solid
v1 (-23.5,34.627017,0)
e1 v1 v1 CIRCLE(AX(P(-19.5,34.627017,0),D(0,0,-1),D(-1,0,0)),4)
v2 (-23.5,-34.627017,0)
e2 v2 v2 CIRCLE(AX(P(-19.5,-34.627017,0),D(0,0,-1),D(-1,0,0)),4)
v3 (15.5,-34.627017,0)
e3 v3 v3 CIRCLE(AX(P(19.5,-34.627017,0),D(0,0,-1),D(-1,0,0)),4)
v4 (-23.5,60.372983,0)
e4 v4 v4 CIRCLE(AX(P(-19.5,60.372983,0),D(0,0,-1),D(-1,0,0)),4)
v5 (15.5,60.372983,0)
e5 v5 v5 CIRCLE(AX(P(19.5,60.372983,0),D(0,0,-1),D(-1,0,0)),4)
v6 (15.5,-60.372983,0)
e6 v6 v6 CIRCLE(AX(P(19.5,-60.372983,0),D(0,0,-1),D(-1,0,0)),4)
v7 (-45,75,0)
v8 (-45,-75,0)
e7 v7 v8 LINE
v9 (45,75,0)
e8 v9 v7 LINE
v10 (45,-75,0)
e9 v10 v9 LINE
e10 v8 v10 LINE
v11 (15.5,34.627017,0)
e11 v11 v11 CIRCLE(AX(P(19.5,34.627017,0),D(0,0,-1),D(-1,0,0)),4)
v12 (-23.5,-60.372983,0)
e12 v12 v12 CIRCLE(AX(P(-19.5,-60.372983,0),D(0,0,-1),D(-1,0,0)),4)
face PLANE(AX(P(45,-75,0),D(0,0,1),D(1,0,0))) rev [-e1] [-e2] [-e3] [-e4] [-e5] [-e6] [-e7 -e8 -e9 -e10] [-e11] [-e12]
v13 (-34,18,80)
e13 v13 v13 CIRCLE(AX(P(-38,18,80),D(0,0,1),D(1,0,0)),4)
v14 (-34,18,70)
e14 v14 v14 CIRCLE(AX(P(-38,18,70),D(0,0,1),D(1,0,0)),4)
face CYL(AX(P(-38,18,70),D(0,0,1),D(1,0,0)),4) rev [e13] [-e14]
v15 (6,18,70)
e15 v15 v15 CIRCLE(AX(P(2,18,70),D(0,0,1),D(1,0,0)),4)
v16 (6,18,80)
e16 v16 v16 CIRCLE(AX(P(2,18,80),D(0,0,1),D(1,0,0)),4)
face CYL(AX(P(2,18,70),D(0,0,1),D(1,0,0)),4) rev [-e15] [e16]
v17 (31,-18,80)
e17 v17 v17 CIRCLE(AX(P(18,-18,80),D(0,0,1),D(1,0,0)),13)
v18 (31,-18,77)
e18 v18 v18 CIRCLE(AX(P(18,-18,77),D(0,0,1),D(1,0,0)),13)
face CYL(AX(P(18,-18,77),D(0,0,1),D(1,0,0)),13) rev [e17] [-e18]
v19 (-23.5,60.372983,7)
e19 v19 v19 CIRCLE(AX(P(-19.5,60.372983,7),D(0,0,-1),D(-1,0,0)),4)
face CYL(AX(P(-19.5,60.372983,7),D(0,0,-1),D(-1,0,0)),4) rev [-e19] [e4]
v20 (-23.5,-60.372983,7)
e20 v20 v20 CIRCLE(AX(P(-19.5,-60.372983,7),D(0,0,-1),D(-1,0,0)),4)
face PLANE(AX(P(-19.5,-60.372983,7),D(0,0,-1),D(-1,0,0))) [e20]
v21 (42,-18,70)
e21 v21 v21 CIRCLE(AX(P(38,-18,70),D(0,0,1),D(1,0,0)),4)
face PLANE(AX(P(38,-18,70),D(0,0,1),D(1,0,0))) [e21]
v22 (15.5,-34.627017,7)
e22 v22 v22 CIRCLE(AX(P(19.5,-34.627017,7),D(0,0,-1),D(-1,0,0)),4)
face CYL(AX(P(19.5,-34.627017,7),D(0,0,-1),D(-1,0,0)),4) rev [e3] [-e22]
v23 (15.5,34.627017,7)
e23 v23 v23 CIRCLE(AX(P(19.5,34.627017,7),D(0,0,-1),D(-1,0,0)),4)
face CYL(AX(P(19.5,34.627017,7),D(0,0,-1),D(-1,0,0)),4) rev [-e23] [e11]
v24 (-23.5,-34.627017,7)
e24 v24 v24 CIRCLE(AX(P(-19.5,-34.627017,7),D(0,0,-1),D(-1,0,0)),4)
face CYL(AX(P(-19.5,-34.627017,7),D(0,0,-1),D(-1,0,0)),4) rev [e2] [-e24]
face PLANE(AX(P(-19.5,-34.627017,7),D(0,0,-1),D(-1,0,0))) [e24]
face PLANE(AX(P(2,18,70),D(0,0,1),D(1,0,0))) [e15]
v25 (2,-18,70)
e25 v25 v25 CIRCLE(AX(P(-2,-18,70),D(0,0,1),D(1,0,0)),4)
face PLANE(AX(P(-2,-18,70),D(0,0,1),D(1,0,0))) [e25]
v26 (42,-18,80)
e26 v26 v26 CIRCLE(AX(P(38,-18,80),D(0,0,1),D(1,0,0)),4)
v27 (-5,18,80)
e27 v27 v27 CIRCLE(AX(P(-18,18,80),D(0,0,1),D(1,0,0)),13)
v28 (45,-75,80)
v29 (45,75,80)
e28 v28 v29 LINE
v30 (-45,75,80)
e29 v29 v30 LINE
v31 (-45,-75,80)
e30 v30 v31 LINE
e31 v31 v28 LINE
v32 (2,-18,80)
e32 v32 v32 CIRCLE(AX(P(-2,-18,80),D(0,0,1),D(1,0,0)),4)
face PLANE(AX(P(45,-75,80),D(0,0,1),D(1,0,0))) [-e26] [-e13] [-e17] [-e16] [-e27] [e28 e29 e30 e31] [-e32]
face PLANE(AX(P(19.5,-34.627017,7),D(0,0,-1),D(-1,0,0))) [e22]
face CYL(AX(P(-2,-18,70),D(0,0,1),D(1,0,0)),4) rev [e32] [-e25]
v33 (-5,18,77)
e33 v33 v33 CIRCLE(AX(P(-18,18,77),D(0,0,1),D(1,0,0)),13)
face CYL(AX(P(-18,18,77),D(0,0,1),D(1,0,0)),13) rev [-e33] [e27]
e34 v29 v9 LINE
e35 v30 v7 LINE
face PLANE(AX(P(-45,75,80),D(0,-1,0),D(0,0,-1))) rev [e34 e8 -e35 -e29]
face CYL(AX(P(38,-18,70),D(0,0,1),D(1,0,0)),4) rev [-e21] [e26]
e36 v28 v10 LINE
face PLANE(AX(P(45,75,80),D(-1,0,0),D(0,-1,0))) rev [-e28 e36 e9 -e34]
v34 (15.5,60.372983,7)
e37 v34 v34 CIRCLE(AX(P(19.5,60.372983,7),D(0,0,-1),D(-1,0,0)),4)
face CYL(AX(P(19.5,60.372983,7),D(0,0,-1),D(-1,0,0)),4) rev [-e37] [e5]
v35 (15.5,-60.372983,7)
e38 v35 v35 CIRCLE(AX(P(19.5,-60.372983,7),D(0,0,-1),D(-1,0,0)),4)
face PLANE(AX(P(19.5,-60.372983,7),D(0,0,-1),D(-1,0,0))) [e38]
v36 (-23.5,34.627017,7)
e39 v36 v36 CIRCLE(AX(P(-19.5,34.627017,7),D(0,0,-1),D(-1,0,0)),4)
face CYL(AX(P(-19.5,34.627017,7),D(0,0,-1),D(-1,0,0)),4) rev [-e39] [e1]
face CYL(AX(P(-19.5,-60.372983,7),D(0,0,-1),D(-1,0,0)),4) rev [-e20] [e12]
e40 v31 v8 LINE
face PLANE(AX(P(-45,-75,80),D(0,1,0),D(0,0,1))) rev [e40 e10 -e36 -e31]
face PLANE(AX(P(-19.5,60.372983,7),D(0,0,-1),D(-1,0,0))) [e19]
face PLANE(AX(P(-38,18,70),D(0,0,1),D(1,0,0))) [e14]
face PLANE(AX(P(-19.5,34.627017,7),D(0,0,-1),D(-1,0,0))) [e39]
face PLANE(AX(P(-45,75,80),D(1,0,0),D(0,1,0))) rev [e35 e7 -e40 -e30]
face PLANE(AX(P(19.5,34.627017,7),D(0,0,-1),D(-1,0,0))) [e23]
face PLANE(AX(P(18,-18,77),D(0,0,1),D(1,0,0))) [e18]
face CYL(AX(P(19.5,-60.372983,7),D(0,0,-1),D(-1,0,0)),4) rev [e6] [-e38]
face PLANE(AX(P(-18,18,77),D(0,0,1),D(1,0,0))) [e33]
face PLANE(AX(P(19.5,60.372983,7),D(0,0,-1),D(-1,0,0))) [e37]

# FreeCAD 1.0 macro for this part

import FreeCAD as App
import Part
import Sketcher

V = App.Vector
Q = App.Units.Quantity


def add_polygon(sketch, points):
    """Adds a closed chain of lines whose ends are joined by coincident constraints."""
    first, n = sketch.GeometryCount, len(points)
    for a, b in zip(points, points[1:] + points[:1]):
        sketch.addGeometry(Part.LineSegment(App.Vector(*a, 0), App.Vector(*b, 0)), False)
    for i in range(n):
        sketch.addConstraint(Sketcher.Constraint("Coincident", first + i, 2, first + (i + 1) % n, 1))

doc = App.newDocument("Part")
body = doc.addObject("PartDesign::Body", "Body")

# Sketch on XY plane
sketch1 = body.newObject("Sketcher::SketchObject", "Sketch")
sketch1.AttachmentSupport = (doc.getObject("XY_Plane"), [""])
sketch1.MapMode = "FlatFace"
add_polygon(sketch1, [(-45, 75), (-45, -75), (45, -75), (45, 75)])  # lines 0-3
sketch1.addConstraint([
    Sketcher.Constraint("Vertical", 0),
    Sketcher.Constraint("Horizontal", 1),
    Sketcher.Constraint("Vertical", 2),
    Sketcher.Constraint("Horizontal", 3),
    Sketcher.Constraint("Symmetric", 0, 2, 2, 2, -1, 1),
    Sketcher.Constraint("DistanceX", 1, 1, 1, 2, Q("90 mm")),
    Sketcher.Constraint("DistanceY", 0, 2, 0, 1, Q("150 mm")),
])
pad1 = body.newObject("PartDesign::Pad", "Pad")
pad1.Profile = sketch1
pad1.Length = 80

# Sketch on XY plane
sketch2 = body.newObject("Sketcher::SketchObject", "Sketch001")
sketch2.AttachmentSupport = (doc.getObject("XY_Plane"), [""])
sketch2.MapMode = "FlatFace"
sketch2.AttachmentOffset = App.Placement(V(0, 0, 80), App.Rotation())
sketch2.addGeometry([
    Part.Circle(V(18, -18, 0), V(0, 0, 1), 13),
    Part.Circle(V(-18, 18, 0), V(0, 0, 1), 13),
], False)
sketch2.addConstraint([
    Sketcher.Constraint("Equal", 0, 1),
    Sketcher.Constraint("Symmetric", 0, 3, 1, 3, -1, 1),
    Sketcher.Constraint("Diameter", 0, Q("26 mm")),
    Sketcher.Constraint("DistanceX", -1, 1, 0, 3, Q("18 mm")),
    Sketcher.Constraint("DistanceY", 0, 3, -1, 1, Q("18 mm")),
])
pocket1 = body.newObject("PartDesign::Pocket", "Pocket")
pocket1.Profile = sketch2
pocket1.Length = 3

# Sketch on XY plane
sketch3 = body.newObject("Sketcher::SketchObject", "Sketch002")
sketch3.AttachmentSupport = (doc.getObject("XY_Plane"), [""])
sketch3.MapMode = "FlatFace"
sketch3.AttachmentOffset = App.Placement(V(0, 0, 80), App.Rotation())
sketch3.addGeometry([
    Part.Circle(V(2, 18, 0), V(0, 0, 1), 4),
    Part.Circle(V(-38, 18, 0), V(0, 0, 1), 4),
    Part.Circle(V(-2, -18, 0), V(0, 0, 1), 4),
    Part.Circle(V(38, -18, 0), V(0, 0, 1), 4),
], False)
sketch3.addConstraint([
    Sketcher.Constraint("Equal", 0, 1),
    Sketcher.Constraint("Equal", 1, 2),
    Sketcher.Constraint("Equal", 2, 3),
    Sketcher.Constraint("Symmetric", 0, 3, 2, 3, -1, 1),
    Sketcher.Constraint("Symmetric", 1, 3, 3, 3, -1, 1),
    Sketcher.Constraint("Horizontal", 0, 3, 1, 3),
    Sketcher.Constraint("Diameter", 0, Q("8 mm")),
    Sketcher.Constraint("DistanceX", -1, 1, 0, 3, Q("2 mm")),
    Sketcher.Constraint("DistanceY", -1, 1, 0, 3, Q("18 mm")),
    Sketcher.Constraint("DistanceX", 1, 3, -1, 1, Q("38 mm")),
])
pocket2 = body.newObject("PartDesign::Pocket", "Pocket001")
pocket2.Profile = sketch3
pocket2.Length = 10

# Sketch on XY plane
sketch4 = body.newObject("Sketcher::SketchObject", "Sketch003")
sketch4.AttachmentSupport = (doc.getObject("XY_Plane"), [""])
sketch4.MapMode = "FlatFace"
sketch4.addGeometry([
    Part.Circle(V(19.5, 60.4, 0), V(0, 0, 1), 4),  # 0
    Part.Circle(V(19.5, -34.6, 0), V(0, 0, 1), 4),  # 1
    Part.Circle(V(-19.5, -34.6, 0), V(0, 0, 1), 4),  # 2
    Part.Circle(V(19.5, 34.6, 0), V(0, 0, 1), 4),  # 3
    Part.Circle(V(19.5, -60.4, 0), V(0, 0, 1), 4),  # 4
    Part.Circle(V(-19.5, -60.4, 0), V(0, 0, 1), 4),  # 5
    Part.Circle(V(-19.5, 34.6, 0), V(0, 0, 1), 4),  # 6
    Part.Circle(V(-19.5, 60.4, 0), V(0, 0, 1), 4),  # 7
], False)
sketch4.addConstraint([
    Sketcher.Constraint("Equal", 0, 1),
    Sketcher.Constraint("Equal", 1, 2),
    Sketcher.Constraint("Equal", 2, 3),
    Sketcher.Constraint("Equal", 3, 4),
    Sketcher.Constraint("Equal", 4, 5),
    Sketcher.Constraint("Equal", 5, 6),
    Sketcher.Constraint("Equal", 6, 7),
    Sketcher.Constraint("Symmetric", 2, 3, 3, 3, -1, 1),
    Sketcher.Constraint("Symmetric", 0, 3, 5, 3, -1, 1),
    Sketcher.Constraint("Symmetric", 1, 3, 6, 3, -1, 1),
    Sketcher.Constraint("Symmetric", 4, 3, 7, 3, -1, 1),
    Sketcher.Constraint("Symmetric", 1, 3, 2, 3, -2),
    Sketcher.Constraint("Symmetric", 4, 3, 5, 3, -2),
    Sketcher.Constraint("Vertical", 0, 3, 1, 3),
    Sketcher.Constraint("Diameter", 0, Q("8 mm")),
    Sketcher.Constraint("DistanceY", 1, 3, 0, 3, Q("95 mm")),
    Sketcher.Constraint("DistanceX", 2, 3, 1, 3, Q("39 mm")),
    Sketcher.Constraint("DistanceY", -1, 1, 0, 3, Q("60.372983 mm")),
])
pocket3 = body.newObject("PartDesign::Pocket", "Pocket002")
pocket3.Profile = sketch4
pocket3.Length = 7
pocket3.Reversed = True

doc.recompute()
